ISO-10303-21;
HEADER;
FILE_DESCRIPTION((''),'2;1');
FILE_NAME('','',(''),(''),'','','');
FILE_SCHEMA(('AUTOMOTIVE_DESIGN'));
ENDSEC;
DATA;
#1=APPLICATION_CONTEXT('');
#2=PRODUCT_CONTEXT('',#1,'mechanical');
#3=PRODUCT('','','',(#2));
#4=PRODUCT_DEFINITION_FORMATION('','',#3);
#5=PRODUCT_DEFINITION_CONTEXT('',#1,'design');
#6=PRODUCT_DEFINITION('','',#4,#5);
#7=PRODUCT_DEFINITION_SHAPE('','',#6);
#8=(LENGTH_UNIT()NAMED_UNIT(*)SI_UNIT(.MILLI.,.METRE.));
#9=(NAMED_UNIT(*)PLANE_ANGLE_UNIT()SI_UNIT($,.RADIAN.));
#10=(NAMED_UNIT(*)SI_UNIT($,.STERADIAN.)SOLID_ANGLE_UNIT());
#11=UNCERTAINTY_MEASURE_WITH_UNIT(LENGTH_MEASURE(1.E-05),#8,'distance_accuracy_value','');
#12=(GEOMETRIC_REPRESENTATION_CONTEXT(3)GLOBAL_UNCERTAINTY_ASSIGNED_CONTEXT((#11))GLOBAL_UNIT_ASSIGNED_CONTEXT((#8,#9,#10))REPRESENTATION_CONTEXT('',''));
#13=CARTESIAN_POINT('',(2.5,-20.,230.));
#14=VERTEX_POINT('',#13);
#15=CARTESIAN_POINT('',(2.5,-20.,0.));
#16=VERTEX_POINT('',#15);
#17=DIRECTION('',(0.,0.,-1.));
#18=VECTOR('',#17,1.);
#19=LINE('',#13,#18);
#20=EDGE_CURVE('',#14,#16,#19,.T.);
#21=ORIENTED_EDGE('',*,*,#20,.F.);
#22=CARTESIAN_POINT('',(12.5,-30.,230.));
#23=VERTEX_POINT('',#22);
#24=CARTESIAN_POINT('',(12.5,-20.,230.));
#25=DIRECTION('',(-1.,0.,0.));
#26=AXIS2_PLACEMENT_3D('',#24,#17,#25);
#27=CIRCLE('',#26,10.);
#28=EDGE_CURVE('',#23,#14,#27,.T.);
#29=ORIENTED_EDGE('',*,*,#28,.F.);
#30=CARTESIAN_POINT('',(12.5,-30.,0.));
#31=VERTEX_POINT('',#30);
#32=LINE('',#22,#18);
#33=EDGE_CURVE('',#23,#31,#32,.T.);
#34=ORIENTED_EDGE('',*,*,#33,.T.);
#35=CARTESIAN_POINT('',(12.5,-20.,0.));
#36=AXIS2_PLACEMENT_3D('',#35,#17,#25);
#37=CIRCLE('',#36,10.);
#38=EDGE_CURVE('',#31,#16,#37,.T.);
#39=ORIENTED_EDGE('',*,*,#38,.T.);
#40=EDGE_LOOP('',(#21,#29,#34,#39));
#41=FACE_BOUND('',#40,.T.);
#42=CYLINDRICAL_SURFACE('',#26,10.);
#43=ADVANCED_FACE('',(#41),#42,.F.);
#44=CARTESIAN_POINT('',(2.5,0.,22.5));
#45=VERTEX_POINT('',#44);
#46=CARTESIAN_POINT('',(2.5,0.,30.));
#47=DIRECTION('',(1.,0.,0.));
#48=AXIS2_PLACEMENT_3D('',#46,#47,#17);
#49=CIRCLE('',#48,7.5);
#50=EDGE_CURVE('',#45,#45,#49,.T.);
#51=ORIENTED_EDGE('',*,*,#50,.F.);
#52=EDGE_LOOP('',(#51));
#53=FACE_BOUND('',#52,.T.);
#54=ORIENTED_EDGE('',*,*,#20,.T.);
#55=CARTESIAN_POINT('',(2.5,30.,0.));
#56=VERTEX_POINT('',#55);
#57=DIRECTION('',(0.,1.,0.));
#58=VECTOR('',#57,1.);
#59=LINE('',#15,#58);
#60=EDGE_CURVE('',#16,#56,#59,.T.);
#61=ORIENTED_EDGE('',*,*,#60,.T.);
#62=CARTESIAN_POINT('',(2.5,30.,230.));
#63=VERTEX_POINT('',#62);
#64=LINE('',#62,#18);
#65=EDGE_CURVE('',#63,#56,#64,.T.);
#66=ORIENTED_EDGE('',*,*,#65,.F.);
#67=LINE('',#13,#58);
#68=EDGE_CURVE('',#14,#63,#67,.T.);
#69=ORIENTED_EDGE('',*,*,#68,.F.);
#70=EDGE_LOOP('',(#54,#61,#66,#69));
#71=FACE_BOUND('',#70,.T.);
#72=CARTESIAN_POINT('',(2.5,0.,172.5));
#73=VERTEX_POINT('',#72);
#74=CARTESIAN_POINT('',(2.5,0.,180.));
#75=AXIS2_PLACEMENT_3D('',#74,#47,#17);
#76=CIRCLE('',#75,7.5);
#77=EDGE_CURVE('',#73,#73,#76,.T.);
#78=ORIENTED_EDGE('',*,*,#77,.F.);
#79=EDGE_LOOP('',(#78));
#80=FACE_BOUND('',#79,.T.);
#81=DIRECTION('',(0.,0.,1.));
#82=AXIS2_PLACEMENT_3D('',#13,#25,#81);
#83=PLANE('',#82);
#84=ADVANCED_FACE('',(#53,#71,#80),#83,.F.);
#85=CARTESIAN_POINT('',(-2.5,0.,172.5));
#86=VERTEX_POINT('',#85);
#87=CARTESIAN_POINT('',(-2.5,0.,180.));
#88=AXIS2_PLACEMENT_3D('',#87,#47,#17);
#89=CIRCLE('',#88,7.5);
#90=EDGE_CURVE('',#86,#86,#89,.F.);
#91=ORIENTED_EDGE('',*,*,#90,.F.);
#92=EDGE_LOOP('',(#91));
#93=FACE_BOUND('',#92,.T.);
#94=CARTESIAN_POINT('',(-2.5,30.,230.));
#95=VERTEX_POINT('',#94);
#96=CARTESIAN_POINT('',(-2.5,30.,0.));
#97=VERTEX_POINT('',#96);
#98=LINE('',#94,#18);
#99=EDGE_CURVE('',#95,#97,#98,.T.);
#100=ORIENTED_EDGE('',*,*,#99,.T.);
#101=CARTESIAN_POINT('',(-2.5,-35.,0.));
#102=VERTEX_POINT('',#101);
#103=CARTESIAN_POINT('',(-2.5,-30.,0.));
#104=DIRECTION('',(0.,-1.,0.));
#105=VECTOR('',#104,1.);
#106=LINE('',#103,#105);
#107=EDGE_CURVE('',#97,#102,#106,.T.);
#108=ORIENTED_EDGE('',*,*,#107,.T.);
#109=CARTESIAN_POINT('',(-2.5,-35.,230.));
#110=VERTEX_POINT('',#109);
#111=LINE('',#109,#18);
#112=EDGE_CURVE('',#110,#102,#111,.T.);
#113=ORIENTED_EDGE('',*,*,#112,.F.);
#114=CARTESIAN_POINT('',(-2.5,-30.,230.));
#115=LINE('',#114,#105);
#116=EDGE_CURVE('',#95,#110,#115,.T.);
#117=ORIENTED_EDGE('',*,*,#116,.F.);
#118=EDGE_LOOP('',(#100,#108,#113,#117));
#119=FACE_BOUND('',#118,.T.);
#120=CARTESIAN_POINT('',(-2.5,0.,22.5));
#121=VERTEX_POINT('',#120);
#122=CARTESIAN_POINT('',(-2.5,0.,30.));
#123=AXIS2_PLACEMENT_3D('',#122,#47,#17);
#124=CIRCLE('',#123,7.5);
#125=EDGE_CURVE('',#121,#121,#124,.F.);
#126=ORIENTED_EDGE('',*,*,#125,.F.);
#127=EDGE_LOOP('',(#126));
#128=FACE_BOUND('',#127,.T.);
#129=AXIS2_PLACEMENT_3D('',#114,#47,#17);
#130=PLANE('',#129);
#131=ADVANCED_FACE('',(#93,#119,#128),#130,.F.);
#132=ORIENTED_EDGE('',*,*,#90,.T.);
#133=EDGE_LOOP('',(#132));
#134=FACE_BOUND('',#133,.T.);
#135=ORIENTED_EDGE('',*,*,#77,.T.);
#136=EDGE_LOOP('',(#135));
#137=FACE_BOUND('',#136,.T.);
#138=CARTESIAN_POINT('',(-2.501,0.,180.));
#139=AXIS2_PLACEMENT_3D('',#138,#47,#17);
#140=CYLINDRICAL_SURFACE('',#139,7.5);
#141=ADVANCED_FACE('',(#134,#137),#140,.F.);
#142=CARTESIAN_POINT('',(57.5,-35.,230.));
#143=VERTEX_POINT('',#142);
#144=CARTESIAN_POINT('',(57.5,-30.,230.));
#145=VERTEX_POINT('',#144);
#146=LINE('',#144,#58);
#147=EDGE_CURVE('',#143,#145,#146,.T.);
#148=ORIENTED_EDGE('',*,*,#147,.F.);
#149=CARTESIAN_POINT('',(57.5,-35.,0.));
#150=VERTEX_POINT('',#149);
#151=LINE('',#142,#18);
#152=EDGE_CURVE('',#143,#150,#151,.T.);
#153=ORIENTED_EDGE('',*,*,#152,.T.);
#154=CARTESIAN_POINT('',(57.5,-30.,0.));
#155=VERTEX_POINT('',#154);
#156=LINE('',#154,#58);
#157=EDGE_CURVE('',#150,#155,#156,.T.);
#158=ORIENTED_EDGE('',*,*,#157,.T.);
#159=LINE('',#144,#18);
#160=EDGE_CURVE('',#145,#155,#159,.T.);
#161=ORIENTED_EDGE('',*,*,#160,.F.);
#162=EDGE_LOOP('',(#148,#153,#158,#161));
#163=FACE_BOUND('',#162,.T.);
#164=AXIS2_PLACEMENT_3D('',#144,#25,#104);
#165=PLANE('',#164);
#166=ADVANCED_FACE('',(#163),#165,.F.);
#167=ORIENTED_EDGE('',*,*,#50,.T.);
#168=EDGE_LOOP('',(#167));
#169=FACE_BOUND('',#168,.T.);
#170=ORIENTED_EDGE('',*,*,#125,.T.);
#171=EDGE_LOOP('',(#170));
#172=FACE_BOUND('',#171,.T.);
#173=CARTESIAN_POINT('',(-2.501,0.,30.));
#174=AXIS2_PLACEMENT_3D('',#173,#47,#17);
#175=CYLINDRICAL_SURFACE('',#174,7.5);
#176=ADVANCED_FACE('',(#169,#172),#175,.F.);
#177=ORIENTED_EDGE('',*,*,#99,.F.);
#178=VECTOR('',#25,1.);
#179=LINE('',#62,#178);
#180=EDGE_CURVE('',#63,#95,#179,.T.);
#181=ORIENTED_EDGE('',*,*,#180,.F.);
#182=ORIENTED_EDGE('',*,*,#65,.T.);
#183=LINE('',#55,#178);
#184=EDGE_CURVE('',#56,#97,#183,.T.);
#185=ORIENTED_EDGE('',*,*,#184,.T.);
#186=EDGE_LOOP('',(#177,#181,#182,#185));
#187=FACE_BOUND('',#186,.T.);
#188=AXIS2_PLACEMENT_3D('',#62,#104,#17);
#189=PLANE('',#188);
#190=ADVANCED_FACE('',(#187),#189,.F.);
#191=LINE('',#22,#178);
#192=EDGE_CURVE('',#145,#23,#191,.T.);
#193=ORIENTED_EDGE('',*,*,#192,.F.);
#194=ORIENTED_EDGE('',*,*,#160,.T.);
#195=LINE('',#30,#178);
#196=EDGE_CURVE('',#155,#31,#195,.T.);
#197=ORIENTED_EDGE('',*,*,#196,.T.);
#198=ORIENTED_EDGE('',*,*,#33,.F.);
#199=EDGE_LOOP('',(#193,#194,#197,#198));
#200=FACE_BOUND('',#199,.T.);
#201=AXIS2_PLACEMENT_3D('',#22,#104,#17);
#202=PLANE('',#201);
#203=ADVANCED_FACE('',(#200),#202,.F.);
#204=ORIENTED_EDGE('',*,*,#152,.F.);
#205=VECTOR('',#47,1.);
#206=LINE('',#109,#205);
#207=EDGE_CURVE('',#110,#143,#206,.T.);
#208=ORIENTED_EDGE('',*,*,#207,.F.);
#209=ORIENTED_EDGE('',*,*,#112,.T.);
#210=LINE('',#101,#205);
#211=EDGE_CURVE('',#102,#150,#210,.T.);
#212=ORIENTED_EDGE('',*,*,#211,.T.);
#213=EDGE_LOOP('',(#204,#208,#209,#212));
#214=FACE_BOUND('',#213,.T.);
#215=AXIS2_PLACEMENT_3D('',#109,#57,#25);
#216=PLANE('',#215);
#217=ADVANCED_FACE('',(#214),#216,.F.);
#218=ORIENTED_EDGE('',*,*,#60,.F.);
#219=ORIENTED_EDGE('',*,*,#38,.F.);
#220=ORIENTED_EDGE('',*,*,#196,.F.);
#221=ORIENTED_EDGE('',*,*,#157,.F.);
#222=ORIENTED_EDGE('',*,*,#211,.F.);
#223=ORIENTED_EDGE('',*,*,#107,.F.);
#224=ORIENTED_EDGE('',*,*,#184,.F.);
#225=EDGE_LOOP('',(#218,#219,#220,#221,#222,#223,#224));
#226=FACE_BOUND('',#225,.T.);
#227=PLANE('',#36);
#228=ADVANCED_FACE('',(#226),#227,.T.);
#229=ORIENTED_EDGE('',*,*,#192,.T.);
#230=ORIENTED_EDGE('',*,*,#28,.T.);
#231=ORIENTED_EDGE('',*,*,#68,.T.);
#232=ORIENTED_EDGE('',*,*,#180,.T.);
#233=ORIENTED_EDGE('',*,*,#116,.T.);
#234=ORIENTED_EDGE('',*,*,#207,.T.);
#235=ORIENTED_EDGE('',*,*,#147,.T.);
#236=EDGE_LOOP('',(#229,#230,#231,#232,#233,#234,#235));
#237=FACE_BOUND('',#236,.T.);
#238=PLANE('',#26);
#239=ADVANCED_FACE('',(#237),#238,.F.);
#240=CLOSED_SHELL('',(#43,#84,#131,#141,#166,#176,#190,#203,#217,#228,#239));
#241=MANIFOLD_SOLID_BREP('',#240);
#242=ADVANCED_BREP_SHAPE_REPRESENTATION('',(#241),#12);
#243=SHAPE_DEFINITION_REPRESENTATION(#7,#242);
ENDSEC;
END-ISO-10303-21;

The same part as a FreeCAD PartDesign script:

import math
import FreeCAD as App
import Part
import Sketcher
Q = App.Units.Quantity

doc = App.newDocument("Part")
body = doc.addObject("PartDesign::Body", "Body")

# Sketch on XY plane
sketch1 = body.newObject("Sketcher::SketchObject", "Sketch")
sketch1.AttachmentSupport = (doc.getObject("XY_Plane"), [""])
sketch1.MapMode = "FlatFace"
sketch1.addGeometry([
    Part.LineSegment(App.Vector(2.5, -20, 0), App.Vector(2.5, 30, 0)),  # 0
    Part.LineSegment(App.Vector(2.5, 30, 0), App.Vector(-2.5, 30, 0)),  # 1
    Part.LineSegment(App.Vector(-2.5, 30, 0), App.Vector(-2.5, -35, 0)),  # 2
    Part.LineSegment(App.Vector(-2.5, -35, 0), App.Vector(57.5, -35, 0)),  # 3
    Part.LineSegment(App.Vector(57.5, -35, 0), App.Vector(57.5, -30, 0)),  # 4
    Part.LineSegment(App.Vector(57.5, -30, 0), App.Vector(12.5, -30, 0)),  # 5
    Part.ArcOfCircle(Part.Circle(App.Vector(12.5, -20, 0), App.Vector(0, 0, 1), 10), math.radians(180), math.radians(270)),  # 6
], False)
sketch1.addConstraint([
    Sketcher.Constraint("Coincident", 0, 2, 1, 1),
    Sketcher.Constraint("Coincident", 1, 2, 2, 1),
    Sketcher.Constraint("Coincident", 2, 2, 3, 1),
    Sketcher.Constraint("Coincident", 3, 2, 4, 1),
    Sketcher.Constraint("Coincident", 4, 2, 5, 1),
    Sketcher.Constraint("Tangent", 5, 2, 6, 2),
    Sketcher.Constraint("Tangent", 6, 1, 0, 1),
    Sketcher.Constraint("Vertical", 0),
    Sketcher.Constraint("Horizontal", 1),
    Sketcher.Constraint("Vertical", 2),
    Sketcher.Constraint("Horizontal", 3),
    Sketcher.Constraint("Vertical", 4),
    Sketcher.Constraint("Horizontal", 5),
    Sketcher.Constraint("Equal", 1, 4),
    Sketcher.Constraint("Radius", 6, Q("10 mm")),
    Sketcher.Constraint("DistanceX", 1, 2, 1, 1, Q("5 mm")),
    Sketcher.Constraint("DistanceX", 3, 1, 3, 2, Q("60 mm")),
    Sketcher.Constraint("DistanceY", 0, 1, 0, 2, Q("50 mm")),
    Sketcher.Constraint("DistanceY", 6, 3, -1, 1, Q("20 mm")),
    Sketcher.Constraint("DistanceX", -1, 1, 6, 3, Q("12.5 mm")),
])
pad1 = body.newObject("PartDesign::Pad", "Pad")
pad1.Profile = sketch1
pad1.Length = 230

# Sketch on YZ plane
sketch2 = body.newObject("Sketcher::SketchObject", "Sketch001")
sketch2.AttachmentSupport = (doc.getObject("YZ_Plane"), [""])
sketch2.MapMode = "FlatFace"
sketch2.AttachmentOffset = App.Placement(App.Vector(0, 0, 2.5), App.Rotation())
sketch2.addGeometry(Part.Circle(App.Vector(0, 30, 0), App.Vector(0, 0, 1), 7.5), False)
sketch2.addConstraint([
    Sketcher.Constraint("PointOnObject", 0, 3, -2),
    Sketcher.Constraint("Diameter", 0, Q("15 mm")),
    Sketcher.Constraint("DistanceY", -1, 1, 0, 3, Q("30 mm")),
])
pocket1 = body.newObject("PartDesign::Pocket", "Pocket")
pocket1.Profile = sketch2
pocket1.Type = "UpToFirst"

# Sketch on YZ plane
sketch3 = body.newObject("Sketcher::SketchObject", "Sketch002")
sketch3.AttachmentSupport = (doc.getObject("YZ_Plane"), [""])
sketch3.MapMode = "FlatFace"
sketch3.AttachmentOffset = App.Placement(App.Vector(0, 0, 2.5), App.Rotation())
sketch3.addGeometry(Part.Circle(App.Vector(0, 180, 0), App.Vector(0, 0, 1), 7.5), False)
sketch3.addConstraint([
    Sketcher.Constraint("PointOnObject", 0, 3, -2),
    Sketcher.Constraint("Diameter", 0, Q("15 mm")),
    Sketcher.Constraint("DistanceY", -1, 1, 0, 3, Q("180 mm")),
])
pocket2 = body.newObject("PartDesign::Pocket", "Pocket001")
pocket2.Profile = sketch3
pocket2.Type = "UpToFirst"

doc.recompute()
